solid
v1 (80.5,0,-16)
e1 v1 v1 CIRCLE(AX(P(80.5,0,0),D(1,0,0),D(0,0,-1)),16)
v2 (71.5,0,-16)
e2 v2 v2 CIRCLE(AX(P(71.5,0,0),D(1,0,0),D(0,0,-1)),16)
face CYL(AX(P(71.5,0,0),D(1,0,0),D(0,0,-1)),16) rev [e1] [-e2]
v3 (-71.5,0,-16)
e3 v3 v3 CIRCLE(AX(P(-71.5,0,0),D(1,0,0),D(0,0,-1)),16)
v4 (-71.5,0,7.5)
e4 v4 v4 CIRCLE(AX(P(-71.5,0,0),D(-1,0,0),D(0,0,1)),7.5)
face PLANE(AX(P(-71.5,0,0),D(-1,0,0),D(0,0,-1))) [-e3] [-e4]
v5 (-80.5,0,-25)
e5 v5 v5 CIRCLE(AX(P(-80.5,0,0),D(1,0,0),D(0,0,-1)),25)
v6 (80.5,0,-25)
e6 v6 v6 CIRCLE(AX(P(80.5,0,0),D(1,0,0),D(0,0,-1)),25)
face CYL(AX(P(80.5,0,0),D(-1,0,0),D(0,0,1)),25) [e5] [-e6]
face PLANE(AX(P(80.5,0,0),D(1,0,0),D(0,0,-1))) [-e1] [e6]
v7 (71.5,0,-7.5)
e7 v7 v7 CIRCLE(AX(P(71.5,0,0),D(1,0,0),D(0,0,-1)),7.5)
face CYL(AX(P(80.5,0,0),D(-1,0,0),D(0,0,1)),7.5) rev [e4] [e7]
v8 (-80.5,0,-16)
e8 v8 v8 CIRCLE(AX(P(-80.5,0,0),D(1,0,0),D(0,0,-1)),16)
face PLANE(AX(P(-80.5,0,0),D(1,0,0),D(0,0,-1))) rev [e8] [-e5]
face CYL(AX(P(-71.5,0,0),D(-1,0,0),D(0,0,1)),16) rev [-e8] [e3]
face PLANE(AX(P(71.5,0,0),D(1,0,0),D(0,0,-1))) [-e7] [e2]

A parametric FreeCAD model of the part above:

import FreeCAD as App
import Part
import Sketcher

V = App.Vector
Q = App.Units.Quantity

doc = App.newDocument("Part")
body = doc.addObject("PartDesign::Body", "Body")

sketch1 = body.newObject("Sketcher::SketchObject", "Sketch")
sketch1.AttachmentSupport = (doc.getObject("YZ_Plane"), [""])
sketch1.MapMode = "FlatFace"
sketch1.addGeometry([
    Part.Circle(V(0, 0, 0), V(0, 0, 1), 25),
    Part.Circle(V(0, 0, 0), V(0, 0, 1), 7.5),
], False)
sketch1.addConstraint([
    Sketcher.Constraint("Coincident", 0, 3, -1, 1),
    Sketcher.Constraint("Coincident", 1, 3, -1, 1),
    Sketcher.Constraint("Diameter", 0, Q("50 mm")),
    Sketcher.Constraint("Diameter", 1, Q("15 mm")),
])
pad1 = body.newObject("PartDesign::Pad", "Pad")
pad1.Profile = sketch1
pad1.Length = 161
pad1.Midplane = True

sketch2 = body.newObject("Sketcher::SketchObject", "Sketch001")
sketch2.AttachmentSupport = (doc.getObject("YZ_Plane"), [""])
sketch2.MapMode = "FlatFace"
sketch2.AttachmentOffset = App.Placement(V(0, 0, 80.5), App.Rotation())
sketch2.addGeometry(Part.Circle(V(0, 0, 0), V(0, 0, 1), 16), False)
sketch2.addConstraint([
    Sketcher.Constraint("Coincident", 0, 3, -1, 1),
    Sketcher.Constraint("Diameter", 0, Q("32 mm")),
])
pocket1 = body.newObject("PartDesign::Pocket", "Pocket")
pocket1.Profile = sketch2
pocket1.Length = 9
doc.recompute()

mirrored = body.newObject("PartDesign::Mirrored", "Mirrored")
mirrored.Originals = [pocket1]
mirrored.MirrorPlane = (doc.getObject("YZ_Plane"), [""])
body.Tip = mirrored

doc.recompute()
